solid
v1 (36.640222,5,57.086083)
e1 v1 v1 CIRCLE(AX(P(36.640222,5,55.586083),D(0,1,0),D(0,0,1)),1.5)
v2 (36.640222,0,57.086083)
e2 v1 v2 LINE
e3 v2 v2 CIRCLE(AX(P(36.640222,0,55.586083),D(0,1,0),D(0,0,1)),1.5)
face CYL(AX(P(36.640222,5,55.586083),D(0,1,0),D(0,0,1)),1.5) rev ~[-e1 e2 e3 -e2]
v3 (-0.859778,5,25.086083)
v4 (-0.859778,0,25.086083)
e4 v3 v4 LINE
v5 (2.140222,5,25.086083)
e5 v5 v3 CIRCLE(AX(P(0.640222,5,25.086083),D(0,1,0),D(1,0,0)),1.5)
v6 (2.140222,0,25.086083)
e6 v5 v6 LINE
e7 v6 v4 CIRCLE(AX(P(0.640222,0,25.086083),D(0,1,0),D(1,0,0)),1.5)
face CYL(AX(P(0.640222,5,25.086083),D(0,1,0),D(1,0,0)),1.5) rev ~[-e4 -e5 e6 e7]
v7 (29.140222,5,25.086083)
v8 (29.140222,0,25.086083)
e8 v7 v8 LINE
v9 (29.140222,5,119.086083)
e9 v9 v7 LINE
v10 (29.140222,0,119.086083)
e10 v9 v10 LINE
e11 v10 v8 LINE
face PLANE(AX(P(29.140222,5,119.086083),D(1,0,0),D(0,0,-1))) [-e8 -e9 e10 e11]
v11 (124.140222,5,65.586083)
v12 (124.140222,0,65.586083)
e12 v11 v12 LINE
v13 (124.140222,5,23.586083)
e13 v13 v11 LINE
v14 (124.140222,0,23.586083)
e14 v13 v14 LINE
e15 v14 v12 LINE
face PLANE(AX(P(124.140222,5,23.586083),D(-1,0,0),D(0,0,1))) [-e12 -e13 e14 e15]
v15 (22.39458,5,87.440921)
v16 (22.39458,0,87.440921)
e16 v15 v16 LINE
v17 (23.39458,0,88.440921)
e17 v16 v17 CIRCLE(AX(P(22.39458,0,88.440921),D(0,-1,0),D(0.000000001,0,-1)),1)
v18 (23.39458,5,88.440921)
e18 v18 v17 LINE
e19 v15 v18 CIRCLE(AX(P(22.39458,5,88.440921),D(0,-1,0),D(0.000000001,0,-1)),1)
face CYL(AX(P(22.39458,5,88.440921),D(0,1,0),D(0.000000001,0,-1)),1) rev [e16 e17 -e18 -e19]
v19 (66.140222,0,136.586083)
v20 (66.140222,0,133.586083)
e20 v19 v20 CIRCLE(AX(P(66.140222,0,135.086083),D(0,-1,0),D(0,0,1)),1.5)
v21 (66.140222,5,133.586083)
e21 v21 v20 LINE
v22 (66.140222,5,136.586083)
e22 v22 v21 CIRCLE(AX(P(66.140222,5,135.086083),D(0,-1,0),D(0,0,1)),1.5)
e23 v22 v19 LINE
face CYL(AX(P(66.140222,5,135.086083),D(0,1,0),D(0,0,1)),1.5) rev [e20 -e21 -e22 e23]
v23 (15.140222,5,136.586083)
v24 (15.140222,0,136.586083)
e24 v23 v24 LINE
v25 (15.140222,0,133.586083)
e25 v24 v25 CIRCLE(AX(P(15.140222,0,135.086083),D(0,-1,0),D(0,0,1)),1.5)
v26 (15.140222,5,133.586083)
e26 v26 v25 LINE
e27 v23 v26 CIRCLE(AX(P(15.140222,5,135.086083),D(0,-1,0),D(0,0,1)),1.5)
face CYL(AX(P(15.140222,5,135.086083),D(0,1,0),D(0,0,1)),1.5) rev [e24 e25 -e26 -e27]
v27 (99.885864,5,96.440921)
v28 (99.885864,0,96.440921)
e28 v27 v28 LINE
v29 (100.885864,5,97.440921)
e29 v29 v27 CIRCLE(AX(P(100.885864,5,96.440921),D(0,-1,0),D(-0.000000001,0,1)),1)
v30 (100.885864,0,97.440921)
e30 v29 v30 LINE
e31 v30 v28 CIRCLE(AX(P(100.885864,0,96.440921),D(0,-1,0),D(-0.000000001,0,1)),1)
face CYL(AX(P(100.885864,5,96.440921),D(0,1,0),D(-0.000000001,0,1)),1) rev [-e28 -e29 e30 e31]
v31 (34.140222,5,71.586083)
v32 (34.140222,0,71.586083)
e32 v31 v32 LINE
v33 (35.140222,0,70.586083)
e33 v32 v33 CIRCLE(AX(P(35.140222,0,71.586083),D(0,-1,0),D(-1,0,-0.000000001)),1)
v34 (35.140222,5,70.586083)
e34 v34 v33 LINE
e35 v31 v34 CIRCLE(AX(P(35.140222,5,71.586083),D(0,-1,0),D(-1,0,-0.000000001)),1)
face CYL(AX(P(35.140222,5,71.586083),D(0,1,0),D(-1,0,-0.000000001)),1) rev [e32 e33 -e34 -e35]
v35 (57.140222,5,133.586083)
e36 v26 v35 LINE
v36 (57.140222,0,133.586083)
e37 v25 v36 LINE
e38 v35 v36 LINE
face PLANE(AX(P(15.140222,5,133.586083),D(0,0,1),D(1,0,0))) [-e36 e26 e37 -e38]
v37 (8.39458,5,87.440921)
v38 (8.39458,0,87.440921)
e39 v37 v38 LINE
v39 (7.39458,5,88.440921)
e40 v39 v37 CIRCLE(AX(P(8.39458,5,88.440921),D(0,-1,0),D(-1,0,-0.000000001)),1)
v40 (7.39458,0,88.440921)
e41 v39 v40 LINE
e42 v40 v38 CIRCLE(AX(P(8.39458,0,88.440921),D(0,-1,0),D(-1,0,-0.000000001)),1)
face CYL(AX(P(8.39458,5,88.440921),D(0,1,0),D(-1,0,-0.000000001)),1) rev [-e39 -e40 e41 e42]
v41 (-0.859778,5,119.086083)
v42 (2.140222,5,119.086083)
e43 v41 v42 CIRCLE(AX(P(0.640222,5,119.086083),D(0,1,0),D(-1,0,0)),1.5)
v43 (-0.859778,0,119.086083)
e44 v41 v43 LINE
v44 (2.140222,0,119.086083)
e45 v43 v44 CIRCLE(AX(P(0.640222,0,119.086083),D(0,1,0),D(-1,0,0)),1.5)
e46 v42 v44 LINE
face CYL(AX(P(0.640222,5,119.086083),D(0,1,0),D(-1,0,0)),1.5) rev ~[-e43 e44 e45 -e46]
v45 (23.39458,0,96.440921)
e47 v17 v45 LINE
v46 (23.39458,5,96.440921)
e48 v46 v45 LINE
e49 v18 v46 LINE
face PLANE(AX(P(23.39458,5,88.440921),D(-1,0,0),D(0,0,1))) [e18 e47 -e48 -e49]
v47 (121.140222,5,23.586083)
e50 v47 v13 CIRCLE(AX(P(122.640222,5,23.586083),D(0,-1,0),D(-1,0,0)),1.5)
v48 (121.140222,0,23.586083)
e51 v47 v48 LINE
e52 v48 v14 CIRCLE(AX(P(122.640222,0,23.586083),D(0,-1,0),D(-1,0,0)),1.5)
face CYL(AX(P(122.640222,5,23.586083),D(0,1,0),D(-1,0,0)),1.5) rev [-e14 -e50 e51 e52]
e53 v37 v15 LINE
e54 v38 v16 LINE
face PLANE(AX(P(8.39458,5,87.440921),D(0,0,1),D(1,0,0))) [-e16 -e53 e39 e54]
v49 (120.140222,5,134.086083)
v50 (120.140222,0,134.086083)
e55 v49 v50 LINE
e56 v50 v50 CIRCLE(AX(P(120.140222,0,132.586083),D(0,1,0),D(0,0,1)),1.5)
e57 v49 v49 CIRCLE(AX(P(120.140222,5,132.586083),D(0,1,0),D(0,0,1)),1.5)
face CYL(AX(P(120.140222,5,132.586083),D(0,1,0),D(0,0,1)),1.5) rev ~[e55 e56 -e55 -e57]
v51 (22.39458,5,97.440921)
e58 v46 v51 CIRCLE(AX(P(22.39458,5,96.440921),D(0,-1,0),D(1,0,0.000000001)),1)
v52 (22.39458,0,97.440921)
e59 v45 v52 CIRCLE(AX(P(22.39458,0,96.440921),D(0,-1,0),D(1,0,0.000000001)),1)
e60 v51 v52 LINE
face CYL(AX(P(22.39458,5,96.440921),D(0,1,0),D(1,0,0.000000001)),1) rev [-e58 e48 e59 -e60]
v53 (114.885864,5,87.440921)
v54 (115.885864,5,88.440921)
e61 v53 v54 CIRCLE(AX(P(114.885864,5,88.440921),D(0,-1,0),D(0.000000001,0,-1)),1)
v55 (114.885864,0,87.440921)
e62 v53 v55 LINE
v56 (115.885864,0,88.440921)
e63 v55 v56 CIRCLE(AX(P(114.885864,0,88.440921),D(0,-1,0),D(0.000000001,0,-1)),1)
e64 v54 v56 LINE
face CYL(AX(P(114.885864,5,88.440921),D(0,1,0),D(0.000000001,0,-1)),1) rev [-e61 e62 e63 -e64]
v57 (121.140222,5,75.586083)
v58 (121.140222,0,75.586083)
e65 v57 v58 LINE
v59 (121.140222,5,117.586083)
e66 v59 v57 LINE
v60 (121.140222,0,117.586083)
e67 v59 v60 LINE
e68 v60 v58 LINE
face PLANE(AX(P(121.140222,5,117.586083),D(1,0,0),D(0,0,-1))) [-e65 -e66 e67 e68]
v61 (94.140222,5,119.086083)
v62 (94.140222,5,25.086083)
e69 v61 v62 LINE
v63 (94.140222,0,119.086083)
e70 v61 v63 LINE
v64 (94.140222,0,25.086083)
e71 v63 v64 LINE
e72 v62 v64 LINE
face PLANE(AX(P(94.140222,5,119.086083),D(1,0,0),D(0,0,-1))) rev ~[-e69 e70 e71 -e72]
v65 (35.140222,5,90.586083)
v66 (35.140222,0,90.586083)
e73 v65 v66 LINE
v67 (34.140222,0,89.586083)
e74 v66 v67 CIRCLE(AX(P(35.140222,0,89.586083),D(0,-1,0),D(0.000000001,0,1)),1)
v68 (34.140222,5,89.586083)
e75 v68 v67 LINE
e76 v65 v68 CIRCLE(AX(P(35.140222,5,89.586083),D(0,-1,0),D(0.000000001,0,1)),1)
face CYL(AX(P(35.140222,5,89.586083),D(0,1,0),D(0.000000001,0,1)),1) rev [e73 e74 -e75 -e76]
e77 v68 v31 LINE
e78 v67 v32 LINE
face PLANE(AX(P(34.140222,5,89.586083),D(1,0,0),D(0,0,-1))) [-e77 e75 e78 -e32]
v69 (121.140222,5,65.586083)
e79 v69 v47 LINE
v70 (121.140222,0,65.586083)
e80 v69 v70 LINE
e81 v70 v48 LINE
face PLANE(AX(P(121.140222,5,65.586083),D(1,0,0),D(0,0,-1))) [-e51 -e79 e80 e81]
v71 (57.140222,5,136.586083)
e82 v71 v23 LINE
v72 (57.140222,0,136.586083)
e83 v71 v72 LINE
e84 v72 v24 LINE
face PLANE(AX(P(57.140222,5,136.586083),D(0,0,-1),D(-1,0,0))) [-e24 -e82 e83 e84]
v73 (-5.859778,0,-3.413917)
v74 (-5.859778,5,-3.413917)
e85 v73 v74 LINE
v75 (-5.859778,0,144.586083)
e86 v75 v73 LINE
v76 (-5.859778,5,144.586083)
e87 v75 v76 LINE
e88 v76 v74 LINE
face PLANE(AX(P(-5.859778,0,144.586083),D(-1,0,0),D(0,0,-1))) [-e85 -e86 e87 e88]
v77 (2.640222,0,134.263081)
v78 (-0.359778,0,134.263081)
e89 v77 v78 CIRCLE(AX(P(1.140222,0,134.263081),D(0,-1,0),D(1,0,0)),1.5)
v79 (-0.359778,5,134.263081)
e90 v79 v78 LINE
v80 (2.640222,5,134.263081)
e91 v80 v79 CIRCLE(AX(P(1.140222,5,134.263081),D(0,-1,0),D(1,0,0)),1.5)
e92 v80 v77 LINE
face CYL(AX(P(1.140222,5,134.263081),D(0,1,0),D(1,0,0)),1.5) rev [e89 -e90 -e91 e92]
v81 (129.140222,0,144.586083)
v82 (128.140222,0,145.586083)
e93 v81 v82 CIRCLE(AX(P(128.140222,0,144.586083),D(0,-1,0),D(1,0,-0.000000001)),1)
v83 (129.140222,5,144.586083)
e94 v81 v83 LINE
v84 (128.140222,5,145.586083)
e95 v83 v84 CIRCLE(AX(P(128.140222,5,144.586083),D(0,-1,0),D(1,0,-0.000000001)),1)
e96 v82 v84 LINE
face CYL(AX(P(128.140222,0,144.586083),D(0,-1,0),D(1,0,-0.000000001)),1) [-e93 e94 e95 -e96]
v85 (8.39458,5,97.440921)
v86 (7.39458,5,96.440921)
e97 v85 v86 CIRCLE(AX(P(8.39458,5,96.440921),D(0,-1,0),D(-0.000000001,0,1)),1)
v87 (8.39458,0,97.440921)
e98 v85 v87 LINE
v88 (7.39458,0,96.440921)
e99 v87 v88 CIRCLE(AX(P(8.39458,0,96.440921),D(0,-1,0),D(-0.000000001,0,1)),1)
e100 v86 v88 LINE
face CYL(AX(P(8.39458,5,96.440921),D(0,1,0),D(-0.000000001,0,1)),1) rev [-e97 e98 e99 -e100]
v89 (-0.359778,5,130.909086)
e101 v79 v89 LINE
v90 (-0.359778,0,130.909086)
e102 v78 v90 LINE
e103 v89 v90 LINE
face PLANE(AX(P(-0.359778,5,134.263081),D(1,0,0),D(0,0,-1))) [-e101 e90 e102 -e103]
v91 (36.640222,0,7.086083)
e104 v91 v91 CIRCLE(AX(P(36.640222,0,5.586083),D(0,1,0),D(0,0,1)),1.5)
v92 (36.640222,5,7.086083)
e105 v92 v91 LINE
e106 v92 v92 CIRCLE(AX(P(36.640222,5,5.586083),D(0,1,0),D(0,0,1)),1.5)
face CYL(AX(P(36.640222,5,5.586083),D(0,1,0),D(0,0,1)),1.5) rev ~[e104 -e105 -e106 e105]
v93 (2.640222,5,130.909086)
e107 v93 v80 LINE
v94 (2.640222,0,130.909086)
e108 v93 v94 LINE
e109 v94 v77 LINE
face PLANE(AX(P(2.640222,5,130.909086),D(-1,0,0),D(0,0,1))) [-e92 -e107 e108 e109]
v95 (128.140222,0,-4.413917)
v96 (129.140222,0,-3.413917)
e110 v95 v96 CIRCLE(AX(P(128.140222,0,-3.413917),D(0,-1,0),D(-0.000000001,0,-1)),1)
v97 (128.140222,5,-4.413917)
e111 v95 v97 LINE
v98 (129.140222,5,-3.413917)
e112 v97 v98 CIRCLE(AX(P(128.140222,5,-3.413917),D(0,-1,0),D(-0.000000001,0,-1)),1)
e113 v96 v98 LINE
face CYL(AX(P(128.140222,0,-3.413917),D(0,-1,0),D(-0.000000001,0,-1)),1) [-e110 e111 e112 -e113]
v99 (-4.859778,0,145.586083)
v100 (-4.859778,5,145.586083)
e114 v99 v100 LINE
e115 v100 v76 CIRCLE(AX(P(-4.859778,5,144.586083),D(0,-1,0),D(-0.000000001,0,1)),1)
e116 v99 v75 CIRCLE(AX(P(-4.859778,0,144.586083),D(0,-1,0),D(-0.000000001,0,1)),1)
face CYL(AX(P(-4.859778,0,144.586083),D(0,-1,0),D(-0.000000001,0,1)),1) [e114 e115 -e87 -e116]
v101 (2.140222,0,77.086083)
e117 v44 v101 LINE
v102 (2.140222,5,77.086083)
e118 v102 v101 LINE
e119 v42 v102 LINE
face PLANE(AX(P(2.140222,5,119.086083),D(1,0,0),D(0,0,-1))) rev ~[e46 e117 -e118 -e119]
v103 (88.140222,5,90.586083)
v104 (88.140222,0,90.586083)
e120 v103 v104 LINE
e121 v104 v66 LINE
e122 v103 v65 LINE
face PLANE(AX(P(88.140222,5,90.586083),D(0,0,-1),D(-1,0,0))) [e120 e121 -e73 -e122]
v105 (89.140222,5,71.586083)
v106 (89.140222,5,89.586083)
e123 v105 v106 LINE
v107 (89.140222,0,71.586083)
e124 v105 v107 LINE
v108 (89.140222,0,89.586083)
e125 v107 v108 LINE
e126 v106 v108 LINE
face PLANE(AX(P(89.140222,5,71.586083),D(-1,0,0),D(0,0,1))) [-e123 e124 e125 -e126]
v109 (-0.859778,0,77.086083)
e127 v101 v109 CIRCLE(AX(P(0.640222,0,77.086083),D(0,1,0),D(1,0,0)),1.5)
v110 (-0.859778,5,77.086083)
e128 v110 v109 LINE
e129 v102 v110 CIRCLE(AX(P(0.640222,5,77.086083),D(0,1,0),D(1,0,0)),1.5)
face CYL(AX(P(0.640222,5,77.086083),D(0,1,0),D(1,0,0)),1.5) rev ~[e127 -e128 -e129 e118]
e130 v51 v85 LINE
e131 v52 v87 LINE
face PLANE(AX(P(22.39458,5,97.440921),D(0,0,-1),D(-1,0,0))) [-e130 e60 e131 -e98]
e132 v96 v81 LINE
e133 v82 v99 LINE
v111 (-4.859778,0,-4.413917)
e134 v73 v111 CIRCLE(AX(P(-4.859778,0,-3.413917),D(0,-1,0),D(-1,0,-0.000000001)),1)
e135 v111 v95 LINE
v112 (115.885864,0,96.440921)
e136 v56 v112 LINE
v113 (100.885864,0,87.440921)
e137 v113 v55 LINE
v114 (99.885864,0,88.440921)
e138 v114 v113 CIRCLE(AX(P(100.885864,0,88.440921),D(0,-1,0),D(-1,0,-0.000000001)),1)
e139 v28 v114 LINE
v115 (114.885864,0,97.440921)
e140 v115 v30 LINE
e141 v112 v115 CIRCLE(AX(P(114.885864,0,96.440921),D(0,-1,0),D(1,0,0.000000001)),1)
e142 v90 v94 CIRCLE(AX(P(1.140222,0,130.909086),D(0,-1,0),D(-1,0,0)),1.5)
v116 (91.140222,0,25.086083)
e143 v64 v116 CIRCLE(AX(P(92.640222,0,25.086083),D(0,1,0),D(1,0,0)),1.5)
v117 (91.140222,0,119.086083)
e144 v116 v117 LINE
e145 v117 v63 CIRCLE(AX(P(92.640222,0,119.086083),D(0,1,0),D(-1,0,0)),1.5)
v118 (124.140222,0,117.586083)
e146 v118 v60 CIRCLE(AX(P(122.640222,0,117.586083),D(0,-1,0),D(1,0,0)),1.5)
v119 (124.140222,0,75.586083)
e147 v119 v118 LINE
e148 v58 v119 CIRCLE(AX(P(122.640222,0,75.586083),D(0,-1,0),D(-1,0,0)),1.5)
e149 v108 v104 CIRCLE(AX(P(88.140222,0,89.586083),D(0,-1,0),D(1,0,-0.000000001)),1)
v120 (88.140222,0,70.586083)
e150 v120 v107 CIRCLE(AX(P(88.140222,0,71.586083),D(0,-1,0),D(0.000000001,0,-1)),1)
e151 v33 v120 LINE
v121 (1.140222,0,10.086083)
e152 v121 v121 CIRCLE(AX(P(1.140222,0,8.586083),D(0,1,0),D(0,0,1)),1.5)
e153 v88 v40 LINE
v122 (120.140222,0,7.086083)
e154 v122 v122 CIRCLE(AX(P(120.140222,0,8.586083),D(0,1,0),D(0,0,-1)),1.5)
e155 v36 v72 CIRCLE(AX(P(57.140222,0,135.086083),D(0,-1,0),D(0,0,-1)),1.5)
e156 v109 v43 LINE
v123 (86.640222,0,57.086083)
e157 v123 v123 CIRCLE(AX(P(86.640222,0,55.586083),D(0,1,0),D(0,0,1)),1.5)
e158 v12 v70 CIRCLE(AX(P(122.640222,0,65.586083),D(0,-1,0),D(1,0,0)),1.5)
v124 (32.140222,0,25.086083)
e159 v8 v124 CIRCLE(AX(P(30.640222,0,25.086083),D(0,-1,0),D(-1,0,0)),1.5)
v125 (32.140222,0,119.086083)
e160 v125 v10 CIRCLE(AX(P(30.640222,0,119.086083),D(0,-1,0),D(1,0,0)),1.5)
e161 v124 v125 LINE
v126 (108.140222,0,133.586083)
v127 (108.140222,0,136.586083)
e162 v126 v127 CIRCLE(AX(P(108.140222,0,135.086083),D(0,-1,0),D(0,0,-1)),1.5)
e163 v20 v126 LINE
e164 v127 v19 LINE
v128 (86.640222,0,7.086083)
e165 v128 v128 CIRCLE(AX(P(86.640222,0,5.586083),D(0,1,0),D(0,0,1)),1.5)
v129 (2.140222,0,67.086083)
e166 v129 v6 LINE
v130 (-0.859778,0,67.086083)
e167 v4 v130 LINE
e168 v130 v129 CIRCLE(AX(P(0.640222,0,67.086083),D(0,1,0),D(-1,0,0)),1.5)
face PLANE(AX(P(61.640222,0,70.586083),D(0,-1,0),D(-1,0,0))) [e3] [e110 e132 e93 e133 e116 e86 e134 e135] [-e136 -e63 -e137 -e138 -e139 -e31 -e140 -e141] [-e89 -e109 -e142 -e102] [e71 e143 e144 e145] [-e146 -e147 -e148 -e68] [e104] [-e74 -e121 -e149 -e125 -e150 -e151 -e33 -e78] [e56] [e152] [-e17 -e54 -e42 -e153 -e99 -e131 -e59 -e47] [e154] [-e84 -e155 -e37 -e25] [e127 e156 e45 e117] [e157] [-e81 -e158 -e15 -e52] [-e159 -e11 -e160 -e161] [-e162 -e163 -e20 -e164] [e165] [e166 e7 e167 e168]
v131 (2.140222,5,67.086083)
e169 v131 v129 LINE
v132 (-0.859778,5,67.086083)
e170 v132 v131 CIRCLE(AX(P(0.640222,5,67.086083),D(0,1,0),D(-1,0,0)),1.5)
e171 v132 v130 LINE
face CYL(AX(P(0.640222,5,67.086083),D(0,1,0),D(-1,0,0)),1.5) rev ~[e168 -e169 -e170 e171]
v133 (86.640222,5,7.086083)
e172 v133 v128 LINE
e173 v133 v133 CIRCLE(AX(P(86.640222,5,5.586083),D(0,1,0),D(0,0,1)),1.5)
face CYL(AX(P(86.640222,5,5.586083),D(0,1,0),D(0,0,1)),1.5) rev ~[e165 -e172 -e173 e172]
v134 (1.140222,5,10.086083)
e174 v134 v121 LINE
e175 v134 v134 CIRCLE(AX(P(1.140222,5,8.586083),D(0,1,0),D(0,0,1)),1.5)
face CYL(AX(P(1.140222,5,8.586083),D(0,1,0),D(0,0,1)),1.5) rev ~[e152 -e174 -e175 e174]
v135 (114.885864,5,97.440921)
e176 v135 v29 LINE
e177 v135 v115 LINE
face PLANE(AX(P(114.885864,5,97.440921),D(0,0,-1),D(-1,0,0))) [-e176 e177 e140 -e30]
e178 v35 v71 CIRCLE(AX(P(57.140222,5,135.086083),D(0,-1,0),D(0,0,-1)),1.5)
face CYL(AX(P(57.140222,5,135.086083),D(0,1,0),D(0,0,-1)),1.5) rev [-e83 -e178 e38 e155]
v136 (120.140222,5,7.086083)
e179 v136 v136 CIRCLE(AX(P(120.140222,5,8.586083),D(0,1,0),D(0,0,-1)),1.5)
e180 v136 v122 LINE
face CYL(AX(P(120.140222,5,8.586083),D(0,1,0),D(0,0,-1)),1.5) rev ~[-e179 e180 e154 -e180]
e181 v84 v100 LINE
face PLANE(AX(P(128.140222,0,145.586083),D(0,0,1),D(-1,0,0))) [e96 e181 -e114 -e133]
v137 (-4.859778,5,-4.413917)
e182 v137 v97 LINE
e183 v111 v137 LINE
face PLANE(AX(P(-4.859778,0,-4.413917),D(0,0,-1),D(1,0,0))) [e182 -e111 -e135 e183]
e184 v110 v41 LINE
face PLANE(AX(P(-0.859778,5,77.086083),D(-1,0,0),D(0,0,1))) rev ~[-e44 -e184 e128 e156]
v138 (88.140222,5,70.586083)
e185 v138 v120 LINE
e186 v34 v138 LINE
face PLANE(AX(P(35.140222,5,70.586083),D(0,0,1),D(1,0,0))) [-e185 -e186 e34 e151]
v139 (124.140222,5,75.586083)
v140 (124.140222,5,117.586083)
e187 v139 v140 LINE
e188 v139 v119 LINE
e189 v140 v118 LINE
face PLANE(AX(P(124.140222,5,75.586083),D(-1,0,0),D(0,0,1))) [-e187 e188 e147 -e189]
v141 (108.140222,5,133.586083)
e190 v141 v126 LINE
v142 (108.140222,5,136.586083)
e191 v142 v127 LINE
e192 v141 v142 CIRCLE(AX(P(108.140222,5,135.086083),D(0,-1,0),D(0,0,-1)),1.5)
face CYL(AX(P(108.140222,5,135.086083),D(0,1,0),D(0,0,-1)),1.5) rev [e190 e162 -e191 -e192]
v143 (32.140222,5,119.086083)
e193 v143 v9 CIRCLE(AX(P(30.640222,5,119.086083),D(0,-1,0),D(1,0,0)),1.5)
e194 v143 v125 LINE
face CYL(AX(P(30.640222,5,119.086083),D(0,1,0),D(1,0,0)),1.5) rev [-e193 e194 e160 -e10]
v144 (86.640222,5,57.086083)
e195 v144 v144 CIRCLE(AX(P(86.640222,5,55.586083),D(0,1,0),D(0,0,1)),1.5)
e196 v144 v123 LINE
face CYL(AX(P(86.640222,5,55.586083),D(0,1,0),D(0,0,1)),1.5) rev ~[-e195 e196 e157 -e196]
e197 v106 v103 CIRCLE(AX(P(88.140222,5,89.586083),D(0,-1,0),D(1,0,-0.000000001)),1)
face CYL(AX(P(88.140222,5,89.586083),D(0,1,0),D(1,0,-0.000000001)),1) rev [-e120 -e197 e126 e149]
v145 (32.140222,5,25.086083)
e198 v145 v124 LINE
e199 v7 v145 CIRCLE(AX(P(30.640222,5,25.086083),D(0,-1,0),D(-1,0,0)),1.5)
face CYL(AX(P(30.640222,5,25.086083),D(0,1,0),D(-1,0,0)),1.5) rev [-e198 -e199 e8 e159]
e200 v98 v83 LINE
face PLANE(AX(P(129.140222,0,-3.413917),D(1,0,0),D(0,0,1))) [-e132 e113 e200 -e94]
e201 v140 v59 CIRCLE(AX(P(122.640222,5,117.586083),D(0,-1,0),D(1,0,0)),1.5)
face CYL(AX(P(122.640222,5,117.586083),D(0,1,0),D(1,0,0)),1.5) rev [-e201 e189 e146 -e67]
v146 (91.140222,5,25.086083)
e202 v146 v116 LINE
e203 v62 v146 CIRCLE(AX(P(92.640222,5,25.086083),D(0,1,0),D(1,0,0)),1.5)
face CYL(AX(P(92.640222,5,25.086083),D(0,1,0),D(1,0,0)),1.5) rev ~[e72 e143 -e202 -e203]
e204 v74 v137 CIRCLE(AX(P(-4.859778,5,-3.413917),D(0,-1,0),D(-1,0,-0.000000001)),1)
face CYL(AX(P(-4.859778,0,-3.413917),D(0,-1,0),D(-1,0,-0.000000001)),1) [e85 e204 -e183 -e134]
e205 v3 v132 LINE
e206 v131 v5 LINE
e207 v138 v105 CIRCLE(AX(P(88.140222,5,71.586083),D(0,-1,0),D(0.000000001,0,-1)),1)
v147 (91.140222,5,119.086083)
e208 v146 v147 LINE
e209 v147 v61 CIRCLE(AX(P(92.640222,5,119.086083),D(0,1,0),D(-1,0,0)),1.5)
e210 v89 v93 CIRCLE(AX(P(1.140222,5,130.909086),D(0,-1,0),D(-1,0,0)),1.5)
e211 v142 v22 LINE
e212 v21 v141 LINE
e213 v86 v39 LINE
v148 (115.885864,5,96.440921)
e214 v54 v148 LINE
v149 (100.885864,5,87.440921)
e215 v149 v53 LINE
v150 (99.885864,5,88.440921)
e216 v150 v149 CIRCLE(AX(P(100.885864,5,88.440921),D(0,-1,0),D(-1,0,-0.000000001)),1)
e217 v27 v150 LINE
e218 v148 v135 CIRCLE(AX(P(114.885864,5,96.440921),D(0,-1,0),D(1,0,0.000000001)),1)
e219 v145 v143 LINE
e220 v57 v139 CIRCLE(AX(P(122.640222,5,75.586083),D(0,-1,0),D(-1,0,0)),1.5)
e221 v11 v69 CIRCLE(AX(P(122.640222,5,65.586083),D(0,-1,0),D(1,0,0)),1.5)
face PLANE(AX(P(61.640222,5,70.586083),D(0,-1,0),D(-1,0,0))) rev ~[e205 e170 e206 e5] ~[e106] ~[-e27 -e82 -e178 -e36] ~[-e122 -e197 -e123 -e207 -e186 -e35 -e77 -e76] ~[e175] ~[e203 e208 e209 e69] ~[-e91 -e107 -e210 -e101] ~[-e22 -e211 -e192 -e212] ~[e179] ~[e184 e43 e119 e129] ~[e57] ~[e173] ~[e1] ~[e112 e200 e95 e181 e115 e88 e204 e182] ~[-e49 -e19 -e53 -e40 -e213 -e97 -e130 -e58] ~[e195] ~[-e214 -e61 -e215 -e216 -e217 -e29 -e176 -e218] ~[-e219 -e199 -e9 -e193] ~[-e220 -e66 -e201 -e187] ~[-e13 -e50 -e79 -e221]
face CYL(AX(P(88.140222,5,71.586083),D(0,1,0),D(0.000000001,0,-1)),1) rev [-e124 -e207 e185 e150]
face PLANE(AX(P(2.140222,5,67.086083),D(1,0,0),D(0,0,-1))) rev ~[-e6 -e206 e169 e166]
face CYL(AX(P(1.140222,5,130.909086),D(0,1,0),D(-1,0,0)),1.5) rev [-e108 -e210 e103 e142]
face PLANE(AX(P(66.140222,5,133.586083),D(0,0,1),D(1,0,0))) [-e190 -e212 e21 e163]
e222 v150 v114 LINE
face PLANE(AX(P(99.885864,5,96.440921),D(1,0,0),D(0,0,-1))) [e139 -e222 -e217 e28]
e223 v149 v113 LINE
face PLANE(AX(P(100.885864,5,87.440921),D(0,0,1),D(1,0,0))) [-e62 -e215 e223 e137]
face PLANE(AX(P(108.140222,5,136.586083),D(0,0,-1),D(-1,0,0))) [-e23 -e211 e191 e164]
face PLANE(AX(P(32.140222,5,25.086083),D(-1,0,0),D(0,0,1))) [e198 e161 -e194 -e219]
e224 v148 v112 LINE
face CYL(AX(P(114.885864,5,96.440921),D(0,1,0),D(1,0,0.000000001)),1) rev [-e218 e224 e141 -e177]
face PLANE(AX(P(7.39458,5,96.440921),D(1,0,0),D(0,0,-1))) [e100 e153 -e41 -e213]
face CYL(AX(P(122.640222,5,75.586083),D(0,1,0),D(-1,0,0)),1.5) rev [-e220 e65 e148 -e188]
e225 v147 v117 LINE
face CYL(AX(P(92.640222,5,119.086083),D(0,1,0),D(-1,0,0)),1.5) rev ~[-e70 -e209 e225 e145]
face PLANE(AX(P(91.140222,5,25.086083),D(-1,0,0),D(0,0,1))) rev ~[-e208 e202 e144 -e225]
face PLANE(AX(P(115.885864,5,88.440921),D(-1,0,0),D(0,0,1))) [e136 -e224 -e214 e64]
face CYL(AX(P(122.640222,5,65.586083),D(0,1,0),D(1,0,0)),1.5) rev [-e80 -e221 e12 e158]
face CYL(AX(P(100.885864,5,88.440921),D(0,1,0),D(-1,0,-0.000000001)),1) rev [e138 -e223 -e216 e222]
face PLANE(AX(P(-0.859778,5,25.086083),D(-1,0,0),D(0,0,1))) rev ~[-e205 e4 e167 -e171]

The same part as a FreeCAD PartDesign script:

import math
import FreeCAD as App
import Part
import Sketcher

doc = App.newDocument("Part")
params = doc.addObject("Spreadsheet::Sheet", "Params")
for row, (alias, value) in enumerate([
    ("sketch1_radius", "1 mm"),
    ("sketch1_width", "133 mm"),
    ("sketch1_height", "148 mm"),
    ("pad1_length", "5 mm"),
    ("sketch2_radius", "1.5 mm"),
    ("sketch2_height", "42 mm"),
    ("pocket1_length", "5 mm"),
    ("sketch3_radius", "1.5 mm"),
    ("sketch3_width", "42 mm"),
    ("pocket2_length", "5 mm"),
    ("sketch4_diameter", "3 mm"),
    ("pocket3_length", "5 mm"),
    ("sketch5_radius", "1 mm"),
    ("sketch5_width", "53 mm"),
    ("sketch5_height", "18 mm"),
    ("pocket4_length", "5 mm"),
    ("sketch6_diameter", "3 mm"),
    ("pocket5_length", "5 mm"),
    ("sketch7_radius", "1.5 mm"),
    ("sketch7_height", "94 mm"),
    ("pocket6_length", "5 mm"),
    ("sketch8_radius", "1 mm"),
    ("sketch8_width", "14 mm"),
    ("sketch8_height", "8 mm"),
    ("pocket7_length", "5 mm"),
], start=1):
    params.set(f"A{row}", alias)
    params.set(f"B{row}", "=" + value)
    params.setAlias(f"B{row}", alias)

body = doc.addObject("PartDesign::Body", "Body")

# Sketch on XZ plane
sketch1 = body.newObject("Sketcher::SketchObject", "Sketch")
sketch1.AttachmentSupport = (doc.getObject("XZ_Plane"), [""])
sketch1.MapMode = "FlatFace"
sketch1.addGeometry([
    Part.LineSegment(App.Vector(128.1, -4.4, 0), App.Vector(-4.9, -4.4, 0)),  # 0
    Part.ArcOfCircle(Part.Circle(App.Vector(-4.9, -3.4, 0), App.Vector(0, 0, 1), 1), math.radians(-180), math.radians(-90)),  # 1
    Part.LineSegment(App.Vector(-5.9, -3.4, 0), App.Vector(-5.9, 144.6, 0)),  # 2
    Part.ArcOfCircle(Part.Circle(App.Vector(-4.9, 144.6, 0), App.Vector(0, 0, 1), 1), math.radians(90), math.radians(180)),  # 3
    Part.LineSegment(App.Vector(-4.9, 145.6, 0), App.Vector(128.1, 145.6, 0)),  # 4
    Part.ArcOfCircle(Part.Circle(App.Vector(128.1, 144.6, 0), App.Vector(0, 0, 1), 1), math.radians(0), math.radians(90)),  # 5
    Part.LineSegment(App.Vector(129.1, 144.6, 0), App.Vector(129.1, -3.4, 0)),  # 6
    Part.ArcOfCircle(Part.Circle(App.Vector(128.1, -3.4, 0), App.Vector(0, 0, 1), 1), math.radians(-90), math.radians(0)),  # 7
], False)
sketch1.addConstraint([
    Sketcher.Constraint("Tangent", 0, 2, 1, 2),
    Sketcher.Constraint("Tangent", 1, 1, 2, 1),
    Sketcher.Constraint("Tangent", 2, 2, 3, 2),
    Sketcher.Constraint("Tangent", 3, 1, 4, 1),
    Sketcher.Constraint("Tangent", 4, 2, 5, 2),
    Sketcher.Constraint("Tangent", 5, 1, 6, 1),
    Sketcher.Constraint("Tangent", 6, 2, 7, 2),
    Sketcher.Constraint("Tangent", 7, 1, 0, 1),
    Sketcher.Constraint("Horizontal", 0),
    Sketcher.Constraint("Vertical", 2),
    Sketcher.Constraint("Horizontal", 4),
    Sketcher.Constraint("Vertical", 6),
    Sketcher.Constraint("Equal", 1, 3),
    Sketcher.Constraint("Equal", 3, 5),
    Sketcher.Constraint("Equal", 5, 7),
    Sketcher.Constraint("Radius", 1, 1.0),
    Sketcher.Constraint("DistanceX", 0, 2, 0, 1, 133.0),
    Sketcher.Constraint("DistanceY", 2, 1, 2, 2, 148.0),
    Sketcher.Constraint("DistanceX", 1, 3, -1, 1, 4.859778),
    Sketcher.Constraint("DistanceY", 1, 3, -1, 1, 3.413917),
])
sketch1.setExpression("Constraints[15]", "Params.sketch1_radius")
sketch1.setExpression("Constraints[16]", "Params.sketch1_width")
sketch1.setExpression("Constraints[17]", "Params.sketch1_height")
pad1 = body.newObject("PartDesign::Pad", "Pad")
pad1.Profile = sketch1
pad1.setExpression("Length", "Params.pad1_length")
pad1.Reversed = True

# Sketch on XZ plane
sketch2 = body.newObject("Sketcher::SketchObject", "Sketch001")
sketch2.AttachmentSupport = (doc.getObject("XZ_Plane"), [""])
sketch2.MapMode = "FlatFace"
sketch2.AttachmentOffset = App.Placement(App.Vector(0, 0, -5), App.Rotation())
sketch2.addGeometry([
    Part.LineSegment(App.Vector(121.1, 75.6, 0), App.Vector(121.1, 117.6, 0)),  # 0
    Part.ArcOfCircle(Part.Circle(App.Vector(122.6, 117.6, 0), App.Vector(0, 0, 1), 1.5), math.radians(0), math.radians(180)),  # 1
    Part.LineSegment(App.Vector(124.1, 117.6, 0), App.Vector(124.1, 75.6, 0)),  # 2
    Part.ArcOfCircle(Part.Circle(App.Vector(122.6, 75.6, 0), App.Vector(0, 0, 1), 1.5), math.radians(180), math.radians(360)),  # 3
    Part.LineSegment(App.Vector(121.1, 23.6, 0), App.Vector(121.1, 65.6, 0)),  # 4
    Part.ArcOfCircle(Part.Circle(App.Vector(122.6, 65.6, 0), App.Vector(0, 0, 1), 1.5), math.radians(0), math.radians(180)),  # 5
    Part.LineSegment(App.Vector(124.1, 65.6, 0), App.Vector(124.1, 23.6, 0)),  # 6
    Part.ArcOfCircle(Part.Circle(App.Vector(122.6, 23.6, 0), App.Vector(0, 0, 1), 1.5), math.radians(180), math.radians(360)),  # 7
    Part.LineSegment(App.Vector(2.1, 119.1, 0), App.Vector(2.1, 77.1, 0)),  # 8
    Part.ArcOfCircle(Part.Circle(App.Vector(0.6, 77.1, 0), App.Vector(0, 0, 1), 1.5), math.radians(180), math.radians(360)),  # 9
    Part.LineSegment(App.Vector(-0.9, 77.1, 0), App.Vector(-0.9, 119.1, 0)),  # 10
    Part.ArcOfCircle(Part.Circle(App.Vector(0.6, 119.1, 0), App.Vector(0, 0, 1), 1.5), math.radians(0), math.radians(180)),  # 11
    Part.LineSegment(App.Vector(2.1, 67.1, 0), App.Vector(2.1, 25.1, 0)),  # 12
    Part.ArcOfCircle(Part.Circle(App.Vector(0.6, 25.1, 0), App.Vector(0, 0, 1), 1.5), math.radians(180), math.radians(360)),  # 13
    Part.LineSegment(App.Vector(-0.9, 25.1, 0), App.Vector(-0.9, 67.1, 0)),  # 14
    Part.ArcOfCircle(Part.Circle(App.Vector(0.6, 67.1, 0), App.Vector(0, 0, 1), 1.5), math.radians(0), math.radians(180)),  # 15
], False)
sketch2.addConstraint([
    Sketcher.Constraint("Tangent", 0, 2, 1, 2),
    Sketcher.Constraint("Tangent", 1, 1, 2, 1),
    Sketcher.Constraint("Tangent", 2, 2, 3, 2),
    Sketcher.Constraint("Tangent", 3, 1, 0, 1),
    Sketcher.Constraint("Tangent", 4, 2, 5, 2),
    Sketcher.Constraint("Tangent", 5, 1, 6, 1),
    Sketcher.Constraint("Tangent", 6, 2, 7, 2),
    Sketcher.Constraint("Tangent", 7, 1, 4, 1),
    Sketcher.Constraint("Tangent", 8, 2, 9, 2),
    Sketcher.Constraint("Tangent", 9, 1, 10, 1),
    Sketcher.Constraint("Tangent", 10, 2, 11, 2),
    Sketcher.Constraint("Tangent", 11, 1, 8, 1),
    Sketcher.Constraint("Tangent", 12, 2, 13, 2),
    Sketcher.Constraint("Tangent", 13, 1, 14, 1),
    Sketcher.Constraint("Tangent", 14, 2, 15, 2),
    Sketcher.Constraint("Tangent", 15, 1, 12, 1),
    Sketcher.Constraint("Vertical", 0),
    Sketcher.Constraint("Vertical", 2),
    Sketcher.Constraint("Vertical", 4),
    Sketcher.Constraint("Vertical", 6),
    Sketcher.Constraint("Vertical", 8),
    Sketcher.Constraint("Vertical", 10),
    Sketcher.Constraint("Vertical", 12),
    Sketcher.Constraint("Vertical", 14),
    Sketcher.Constraint("Equal", 3, 5),
    Sketcher.Constraint("Equal", 7, 9),
    Sketcher.Constraint("Equal", 11, 13),
    Sketcher.Constraint("Vertical", 3, 3, 5, 3),
    Sketcher.Constraint("Vertical", 11, 3, 13, 3),
    Sketcher.Constraint("Equal", 2, 4),
    Sketcher.Constraint("Equal", 6, 8),
    Sketcher.Constraint("Equal", 10, 12),
    Sketcher.Constraint("Radius", 1, 1.5),
    Sketcher.Constraint("DistanceY", 0, 1, 0, 2, 42.0),
    Sketcher.Constraint("DistanceY", 5, 3, 3, 3, 10.0),
    Sketcher.Constraint("DistanceX", 9, 3, 3, 3, 122.0),
    Sketcher.Constraint("DistanceY", 13, 3, 9, 3, 52.0),
    Sketcher.Constraint("DistanceY", 3, 3, 9, 3, 1.5),
    Sketcher.Constraint("DistanceX", -1, 1, 1, 3, 122.640222),
    Sketcher.Constraint("DistanceY", -1, 1, 1, 3, 117.586083),
])
sketch2.setExpression("Constraints[32]", "Params.sketch2_radius")
sketch2.setExpression("Constraints[33]", "Params.sketch2_height")
pocket1 = body.newObject("PartDesign::Pocket", "Pocket")
pocket1.Profile = sketch2
pocket1.setExpression("Length", "Params.pocket1_length")
pocket1.Reversed = True

# Sketch on XZ plane
sketch3 = body.newObject("Sketcher::SketchObject", "Sketch002")
sketch3.AttachmentSupport = (doc.getObject("XZ_Plane"), [""])
sketch3.MapMode = "FlatFace"
sketch3.AttachmentOffset = App.Placement(App.Vector(0, 0, -5), App.Rotation())
sketch3.addGeometry([
    Part.LineSegment(App.Vector(57.1, 133.6, 0), App.Vector(15.1, 133.6, 0)),  # 0
    Part.ArcOfCircle(Part.Circle(App.Vector(15.1, 135.1, 0), App.Vector(0, 0, 1), 1.5), math.radians(90), math.radians(270)),  # 1
    Part.LineSegment(App.Vector(15.1, 136.6, 0), App.Vector(57.1, 136.6, 0)),  # 2
    Part.ArcOfCircle(Part.Circle(App.Vector(57.1, 135.1, 0), App.Vector(0, 0, 1), 1.5), math.radians(-90), math.radians(90)),  # 3
    Part.LineSegment(App.Vector(108.1, 133.6, 0), App.Vector(66.1, 133.6, 0)),  # 4
    Part.ArcOfCircle(Part.Circle(App.Vector(66.1, 135.1, 0), App.Vector(0, 0, 1), 1.5), math.radians(90), math.radians(270)),  # 5
    Part.LineSegment(App.Vector(66.1, 136.6, 0), App.Vector(108.1, 136.6, 0)),  # 6
    Part.ArcOfCircle(Part.Circle(App.Vector(108.1, 135.1, 0), App.Vector(0, 0, 1), 1.5), math.radians(-90), math.radians(90)),  # 7
], False)
sketch3.addConstraint([
    Sketcher.Constraint("Tangent", 0, 2, 1, 2),
    Sketcher.Constraint("Tangent", 1, 1, 2, 1),
    Sketcher.Constraint("Tangent", 2, 2, 3, 2),
    Sketcher.Constraint("Tangent", 3, 1, 0, 1),
    Sketcher.Constraint("Tangent", 4, 2, 5, 2),
    Sketcher.Constraint("Tangent", 5, 1, 6, 1),
    Sketcher.Constraint("Tangent", 6, 2, 7, 2),
    Sketcher.Constraint("Tangent", 7, 1, 4, 1),
    Sketcher.Constraint("Horizontal", 0),
    Sketcher.Constraint("Horizontal", 2),
    Sketcher.Constraint("Horizontal", 4),
    Sketcher.Constraint("Horizontal", 6),
    Sketcher.Constraint("Equal", 3, 5),
    Sketcher.Constraint("Horizontal", 3, 3, 5, 3),
    Sketcher.Constraint("Equal", 2, 4),
    Sketcher.Constraint("Radius", 1, 1.5),
    Sketcher.Constraint("DistanceX", 0, 2, 0, 1, 42.0),
    Sketcher.Constraint("DistanceX", 3, 3, 5, 3, 9.0),
    Sketcher.Constraint("DistanceX", -1, 1, 1, 3, 15.140222),
    Sketcher.Constraint("DistanceY", -1, 1, 1, 3, 135.086083),
])
sketch3.setExpression("Constraints[15]", "Params.sketch3_radius")
sketch3.setExpression("Constraints[16]", "Params.sketch3_width")
pocket2 = body.newObject("PartDesign::Pocket", "Pocket001")
pocket2.Profile = sketch3
pocket2.setExpression("Length", "Params.pocket2_length")
pocket2.Reversed = True

# Sketch on XZ plane
sketch4 = body.newObject("Sketcher::SketchObject", "Sketch003")
sketch4.AttachmentSupport = (doc.getObject("XZ_Plane"), [""])
sketch4.MapMode = "FlatFace"
sketch4.AttachmentOffset = App.Placement(App.Vector(0, 0, -5), App.Rotation())
sketch4.addGeometry([
    Part.Circle(App.Vector(120.1, 132.6, 0), App.Vector(0, 0, 1), 1.5),  # 0
    Part.Circle(App.Vector(120.1, 8.6, 0), App.Vector(0, 0, 1), 1.5),  # 1
    Part.Circle(App.Vector(1.1, 8.6, 0), App.Vector(0, 0, 1), 1.5),  # 2
    Part.LineSegment(App.Vector(2.6, 134.3, 0), App.Vector(2.6, 130.9, 0)),  # 3
    Part.ArcOfCircle(Part.Circle(App.Vector(1.1, 130.9, 0), App.Vector(0, 0, 1), 1.5), math.radians(180), math.radians(360)),  # 4
    Part.LineSegment(App.Vector(-0.4, 130.9, 0), App.Vector(-0.4, 134.3, 0)),  # 5
    Part.ArcOfCircle(Part.Circle(App.Vector(1.1, 134.3, 0), App.Vector(0, 0, 1), 1.5), math.radians(0), math.radians(180)),  # 6
], False)
sketch4.addConstraint([
    Sketcher.Constraint("Tangent", 3, 2, 4, 2),
    Sketcher.Constraint("Tangent", 4, 1, 5, 1),
    Sketcher.Constraint("Tangent", 5, 2, 6, 2),
    Sketcher.Constraint("Tangent", 6, 1, 3, 1),
    Sketcher.Constraint("Vertical", 3),
    Sketcher.Constraint("Vertical", 5),
    Sketcher.Constraint("Equal", 0, 1),
    Sketcher.Constraint("Equal", 1, 2),
    Sketcher.Constraint("Equal", 2, 4),
    Sketcher.Constraint("Horizontal", 1, 3, 2, 3),
    Sketcher.Constraint("Vertical", 0, 3, 1, 3),
    Sketcher.Constraint("Vertical", 2, 3, 4, 3),
    Sketcher.Constraint("Diameter", 0, 3.0),
    Sketcher.Constraint("DistanceY", 1, 3, 0, 3, 124.0),
    Sketcher.Constraint("DistanceX", 2, 3, 1, 3, 119.0),
    Sketcher.Constraint("DistanceY", 3, 2, 3, 1, 3.353995),
    Sketcher.Constraint("DistanceX", -1, 1, 0, 3, 120.140222),
    Sketcher.Constraint("DistanceY", -1, 1, 6, 3, 134.263081),
    Sketcher.Constraint("DistanceY", -1, 1, 0, 3, 132.586083),
])
sketch4.setExpression("Constraints[12]", "Params.sketch4_diameter")
pocket3 = body.newObject("PartDesign::Pocket", "Pocket002")
pocket3.Profile = sketch4
pocket3.setExpression("Length", "Params.pocket3_length")
pocket3.Reversed = True

# Sketch on XZ plane
sketch5 = body.newObject("Sketcher::SketchObject", "Sketch004")
sketch5.AttachmentSupport = (doc.getObject("XZ_Plane"), [""])
sketch5.MapMode = "FlatFace"
sketch5.AttachmentOffset = App.Placement(App.Vector(0, 0, -5), App.Rotation())
sketch5.addGeometry([
    Part.LineSegment(App.Vector(88.1, 70.6, 0), App.Vector(35.1, 70.6, 0)),  # 0
    Part.ArcOfCircle(Part.Circle(App.Vector(35.1, 71.6, 0), App.Vector(0, 0, 1), 1), math.radians(-180), math.radians(-90)),  # 1
    Part.LineSegment(App.Vector(34.1, 71.6, 0), App.Vector(34.1, 89.6, 0)),  # 2
    Part.ArcOfCircle(Part.Circle(App.Vector(35.1, 89.6, 0), App.Vector(0, 0, 1), 1), math.radians(90), math.radians(180)),  # 3
    Part.LineSegment(App.Vector(35.1, 90.6, 0), App.Vector(88.1, 90.6, 0)),  # 4
    Part.ArcOfCircle(Part.Circle(App.Vector(88.1, 89.6, 0), App.Vector(0, 0, 1), 1), math.radians(0), math.radians(90)),  # 5
    Part.LineSegment(App.Vector(89.1, 89.6, 0), App.Vector(89.1, 71.6, 0)),  # 6
    Part.ArcOfCircle(Part.Circle(App.Vector(88.1, 71.6, 0), App.Vector(0, 0, 1), 1), math.radians(-90), math.radians(0)),  # 7
], False)
sketch5.addConstraint([
    Sketcher.Constraint("Tangent", 0, 2, 1, 2),
    Sketcher.Constraint("Tangent", 1, 1, 2, 1),
    Sketcher.Constraint("Tangent", 2, 2, 3, 2),
    Sketcher.Constraint("Tangent", 3, 1, 4, 1),
    Sketcher.Constraint("Tangent", 4, 2, 5, 2),
    Sketcher.Constraint("Tangent", 5, 1, 6, 1),
    Sketcher.Constraint("Tangent", 6, 2, 7, 2),
    Sketcher.Constraint("Tangent", 7, 1, 0, 1),
    Sketcher.Constraint("Horizontal", 0),
    Sketcher.Constraint("Vertical", 2),
    Sketcher.Constraint("Horizontal", 4),
    Sketcher.Constraint("Vertical", 6),
    Sketcher.Constraint("Equal", 1, 3),
    Sketcher.Constraint("Equal", 3, 5),
    Sketcher.Constraint("Equal", 5, 7),
    Sketcher.Constraint("Radius", 1, 1.0),
    Sketcher.Constraint("DistanceX", 0, 2, 0, 1, 53.0),
    Sketcher.Constraint("DistanceY", 2, 1, 2, 2, 18.0),
    Sketcher.Constraint("DistanceX", -1, 1, 1, 3, 35.140222),
    Sketcher.Constraint("DistanceY", -1, 1, 1, 3, 71.586083),
])
sketch5.setExpression("Constraints[15]", "Params.sketch5_radius")
sketch5.setExpression("Constraints[16]", "Params.sketch5_width")
sketch5.setExpression("Constraints[17]", "Params.sketch5_height")
pocket4 = body.newObject("PartDesign::Pocket", "Pocket003")
pocket4.Profile = sketch5
pocket4.setExpression("Length", "Params.pocket4_length")
pocket4.Reversed = True

# Sketch on XZ plane
sketch6 = body.newObject("Sketcher::SketchObject", "Sketch005")
sketch6.AttachmentSupport = (doc.getObject("XZ_Plane"), [""])
sketch6.MapMode = "FlatFace"
sketch6.AttachmentOffset = App.Placement(App.Vector(0, 0, -5), App.Rotation())
sketch6.addGeometry([
    Part.Circle(App.Vector(36.6, 5.6, 0), App.Vector(0, 0, 1), 1.5),
    Part.Circle(App.Vector(86.6, 5.6, 0), App.Vector(0, 0, 1), 1.5),
    Part.Circle(App.Vector(86.6, 55.6, 0), App.Vector(0, 0, 1), 1.5),
    Part.Circle(App.Vector(36.6, 55.6, 0), App.Vector(0, 0, 1), 1.5),
], False)
sketch6.addConstraint([
    Sketcher.Constraint("Equal", 0, 1),
    Sketcher.Constraint("Equal", 1, 2),
    Sketcher.Constraint("Equal", 2, 3),
    Sketcher.Constraint("Horizontal", 0, 3, 1, 3),
    Sketcher.Constraint("Horizontal", 2, 3, 3, 3),
    Sketcher.Constraint("Vertical", 1, 3, 2, 3),
    Sketcher.Constraint("Vertical", 0, 3, 3, 3),
    Sketcher.Constraint("Diameter", 0, 3.0),
    Sketcher.Constraint("DistanceX", 0, 3, 1, 3, 50.0),
    Sketcher.Constraint("DistanceY", 1, 3, 2, 3, 50.0),
    Sketcher.Constraint("DistanceX", -1, 1, 0, 3, 36.640222),
    Sketcher.Constraint("DistanceY", -1, 1, 0, 3, 5.586083),
])
sketch6.setExpression("Constraints[7]", "Params.sketch6_diameter")
pocket5 = body.newObject("PartDesign::Pocket", "Pocket004")
pocket5.Profile = sketch6
pocket5.setExpression("Length", "Params.pocket5_length")
pocket5.Reversed = True

# Sketch on XZ plane
sketch7 = body.newObject("Sketcher::SketchObject", "Sketch006")
sketch7.AttachmentSupport = (doc.getObject("XZ_Plane"), [""])
sketch7.MapMode = "FlatFace"
sketch7.AttachmentOffset = App.Placement(App.Vector(0, 0, -5), App.Rotation())
sketch7.addGeometry([
    Part.LineSegment(App.Vector(32.1, 119.1, 0), App.Vector(32.1, 25.1, 0)),  # 0
    Part.ArcOfCircle(Part.Circle(App.Vector(30.6, 25.1, 0), App.Vector(0, 0, 1), 1.5), math.radians(180), math.radians(360)),  # 1
    Part.LineSegment(App.Vector(29.1, 25.1, 0), App.Vector(29.1, 119.1, 0)),  # 2
    Part.ArcOfCircle(Part.Circle(App.Vector(30.6, 119.1, 0), App.Vector(0, 0, 1), 1.5), math.radians(0), math.radians(180)),  # 3
    Part.LineSegment(App.Vector(91.1, 25.1, 0), App.Vector(91.1, 119.1, 0)),  # 4
    Part.ArcOfCircle(Part.Circle(App.Vector(92.6, 119.1, 0), App.Vector(0, 0, 1), 1.5), math.radians(0), math.radians(180)),  # 5
    Part.LineSegment(App.Vector(94.1, 119.1, 0), App.Vector(94.1, 25.1, 0)),  # 6
    Part.ArcOfCircle(Part.Circle(App.Vector(92.6, 25.1, 0), App.Vector(0, 0, 1), 1.5), math.radians(180), math.radians(360)),  # 7
], False)
sketch7.addConstraint([
    Sketcher.Constraint("Tangent", 0, 2, 1, 2),
    Sketcher.Constraint("Tangent", 1, 1, 2, 1),
    Sketcher.Constraint("Tangent", 2, 2, 3, 2),
    Sketcher.Constraint("Tangent", 3, 1, 0, 1),
    Sketcher.Constraint("Tangent", 4, 2, 5, 2),
    Sketcher.Constraint("Tangent", 5, 1, 6, 1),
    Sketcher.Constraint("Tangent", 6, 2, 7, 2),
    Sketcher.Constraint("Tangent", 7, 1, 4, 1),
    Sketcher.Constraint("Vertical", 0),
    Sketcher.Constraint("Vertical", 2),
    Sketcher.Constraint("Vertical", 4),
    Sketcher.Constraint("Vertical", 6),
    Sketcher.Constraint("Equal", 3, 5),
    Sketcher.Constraint("Horizontal", 3, 3, 5, 3),
    Sketcher.Constraint("Horizontal", 1, 3, 7, 3),
    Sketcher.Constraint("Radius", 1, 1.5),
    Sketcher.Constraint("DistanceY", 0, 2, 0, 1, 94.0),
    Sketcher.Constraint("DistanceX", 3, 3, 5, 3, 62.0),
    Sketcher.Constraint("DistanceX", -1, 1, 1, 3, 30.640222),
    Sketcher.Constraint("DistanceY", -1, 1, 1, 3, 25.086083),
])
sketch7.setExpression("Constraints[15]", "Params.sketch7_radius")
sketch7.setExpression("Constraints[16]", "Params.sketch7_height")
pocket6 = body.newObject("PartDesign::Pocket", "Pocket005")
pocket6.Profile = sketch7
pocket6.setExpression("Length", "Params.pocket6_length")
pocket6.Reversed = True

# Sketch on XZ plane
sketch8 = body.newObject("Sketcher::SketchObject", "Sketch007")
sketch8.AttachmentSupport = (doc.getObject("XZ_Plane"), [""])
sketch8.MapMode = "FlatFace"
sketch8.AttachmentOffset = App.Placement(App.Vector(0, 0, -5), App.Rotation())
sketch8.addGeometry([
    Part.LineSegment(App.Vector(8.4, 97.4, 0), App.Vector(22.4, 97.4, 0)),  # 0
    Part.ArcOfCircle(Part.Circle(App.Vector(22.4, 96.4, 0), App.Vector(0, 0, 1), 1), math.radians(0), math.radians(90)),  # 1
    Part.LineSegment(App.Vector(23.4, 96.4, 0), App.Vector(23.4, 88.4, 0)),  # 2
    Part.ArcOfCircle(Part.Circle(App.Vector(22.4, 88.4, 0), App.Vector(0, 0, 1), 1), math.radians(-90), math.radians(0)),  # 3
    Part.LineSegment(App.Vector(22.4, 87.4, 0), App.Vector(8.4, 87.4, 0)),  # 4
    Part.ArcOfCircle(Part.Circle(App.Vector(8.4, 88.4, 0), App.Vector(0, 0, 1), 1), math.radians(-180), math.radians(-90)),  # 5
    Part.LineSegment(App.Vector(7.4, 88.4, 0), App.Vector(7.4, 96.4, 0)),  # 6
    Part.ArcOfCircle(Part.Circle(App.Vector(8.4, 96.4, 0), App.Vector(0, 0, 1), 1), math.radians(90), math.radians(180)),  # 7
    Part.LineSegment(App.Vector(114.9, 87.4, 0), App.Vector(100.9, 87.4, 0)),  # 8
    Part.ArcOfCircle(Part.Circle(App.Vector(100.9, 88.4, 0), App.Vector(0, 0, 1), 1), math.radians(-180), math.radians(-90)),  # 9
    Part.LineSegment(App.Vector(99.9, 88.4, 0), App.Vector(99.9, 96.4, 0)),  # 10
    Part.ArcOfCircle(Part.Circle(App.Vector(100.9, 96.4, 0), App.Vector(0, 0, 1), 1), math.radians(90), math.radians(180)),  # 11
    Part.LineSegment(App.Vector(100.9, 97.4, 0), App.Vector(114.9, 97.4, 0)),  # 12
    Part.ArcOfCircle(Part.Circle(App.Vector(114.9, 96.4, 0), App.Vector(0, 0, 1), 1), math.radians(0), math.radians(90)),  # 13
    Part.LineSegment(App.Vector(115.9, 96.4, 0), App.Vector(115.9, 88.4, 0)),  # 14
    Part.ArcOfCircle(Part.Circle(App.Vector(114.9, 88.4, 0), App.Vector(0, 0, 1), 1), math.radians(-90), math.radians(0)),  # 15
], False)
sketch8.addConstraint([
    Sketcher.Constraint("Tangent", 0, 2, 1, 2),
    Sketcher.Constraint("Tangent", 1, 1, 2, 1),
    Sketcher.Constraint("Tangent", 2, 2, 3, 2),
    Sketcher.Constraint("Tangent", 3, 1, 4, 1),
    Sketcher.Constraint("Tangent", 4, 2, 5, 2),
    Sketcher.Constraint("Tangent", 5, 1, 6, 1),
    Sketcher.Constraint("Tangent", 6, 2, 7, 2),
    Sketcher.Constraint("Tangent", 7, 1, 0, 1),
    Sketcher.Constraint("Tangent", 8, 2, 9, 2),
    Sketcher.Constraint("Tangent", 9, 1, 10, 1),
    Sketcher.Constraint("Tangent", 10, 2, 11, 2),
    Sketcher.Constraint("Tangent", 11, 1, 12, 1),
    Sketcher.Constraint("Tangent", 12, 2, 13, 2),
    Sketcher.Constraint("Tangent", 13, 1, 14, 1),
    Sketcher.Constraint("Tangent", 14, 2, 15, 2),
    Sketcher.Constraint("Tangent", 15, 1, 8, 1),
    Sketcher.Constraint("Horizontal", 0),
    Sketcher.Constraint("Vertical", 2),
    Sketcher.Constraint("Horizontal", 4),
    Sketcher.Constraint("Vertical", 6),
    Sketcher.Constraint("Horizontal", 8),
    Sketcher.Constraint("Vertical", 10),
    Sketcher.Constraint("Horizontal", 12),
    Sketcher.Constraint("Vertical", 14),
    Sketcher.Constraint("Equal", 1, 3),
    Sketcher.Constraint("Equal", 3, 5),
    Sketcher.Constraint("Equal", 5, 7),
    Sketcher.Constraint("Equal", 7, 9),
    Sketcher.Constraint("Equal", 9, 11),
    Sketcher.Constraint("Equal", 11, 13),
    Sketcher.Constraint("Equal", 13, 15),
    Sketcher.Constraint("Horizontal", 5, 3, 9, 3),
    Sketcher.Constraint("Horizontal", 7, 3, 11, 3),
    Sketcher.Constraint("Equal", 4, 8),
    Sketcher.Constraint("Radius", 1, 1.0),
    Sketcher.Constraint("DistanceX", 0, 1, 0, 2, 14.0),
    Sketcher.Constraint("DistanceY", 2, 2, 2, 1, 8.0),
    Sketcher.Constraint("DistanceX", -1, 1, 1, 3, 22.39458),
    Sketcher.Constraint("DistanceY", -1, 1, 1, 3, 96.440921),
    Sketcher.Constraint("DistanceX", -1, 1, 9, 3, 100.885864),
])
sketch8.setExpression("Constraints[34]", "Params.sketch8_radius")
sketch8.setExpression("Constraints[35]", "Params.sketch8_width")
sketch8.setExpression("Constraints[36]", "Params.sketch8_height")
pocket7 = body.newObject("PartDesign::Pocket", "Pocket006")
pocket7.Profile = sketch8
pocket7.setExpression("Length", "Params.pocket7_length")
pocket7.Reversed = True

doc.recompute()
